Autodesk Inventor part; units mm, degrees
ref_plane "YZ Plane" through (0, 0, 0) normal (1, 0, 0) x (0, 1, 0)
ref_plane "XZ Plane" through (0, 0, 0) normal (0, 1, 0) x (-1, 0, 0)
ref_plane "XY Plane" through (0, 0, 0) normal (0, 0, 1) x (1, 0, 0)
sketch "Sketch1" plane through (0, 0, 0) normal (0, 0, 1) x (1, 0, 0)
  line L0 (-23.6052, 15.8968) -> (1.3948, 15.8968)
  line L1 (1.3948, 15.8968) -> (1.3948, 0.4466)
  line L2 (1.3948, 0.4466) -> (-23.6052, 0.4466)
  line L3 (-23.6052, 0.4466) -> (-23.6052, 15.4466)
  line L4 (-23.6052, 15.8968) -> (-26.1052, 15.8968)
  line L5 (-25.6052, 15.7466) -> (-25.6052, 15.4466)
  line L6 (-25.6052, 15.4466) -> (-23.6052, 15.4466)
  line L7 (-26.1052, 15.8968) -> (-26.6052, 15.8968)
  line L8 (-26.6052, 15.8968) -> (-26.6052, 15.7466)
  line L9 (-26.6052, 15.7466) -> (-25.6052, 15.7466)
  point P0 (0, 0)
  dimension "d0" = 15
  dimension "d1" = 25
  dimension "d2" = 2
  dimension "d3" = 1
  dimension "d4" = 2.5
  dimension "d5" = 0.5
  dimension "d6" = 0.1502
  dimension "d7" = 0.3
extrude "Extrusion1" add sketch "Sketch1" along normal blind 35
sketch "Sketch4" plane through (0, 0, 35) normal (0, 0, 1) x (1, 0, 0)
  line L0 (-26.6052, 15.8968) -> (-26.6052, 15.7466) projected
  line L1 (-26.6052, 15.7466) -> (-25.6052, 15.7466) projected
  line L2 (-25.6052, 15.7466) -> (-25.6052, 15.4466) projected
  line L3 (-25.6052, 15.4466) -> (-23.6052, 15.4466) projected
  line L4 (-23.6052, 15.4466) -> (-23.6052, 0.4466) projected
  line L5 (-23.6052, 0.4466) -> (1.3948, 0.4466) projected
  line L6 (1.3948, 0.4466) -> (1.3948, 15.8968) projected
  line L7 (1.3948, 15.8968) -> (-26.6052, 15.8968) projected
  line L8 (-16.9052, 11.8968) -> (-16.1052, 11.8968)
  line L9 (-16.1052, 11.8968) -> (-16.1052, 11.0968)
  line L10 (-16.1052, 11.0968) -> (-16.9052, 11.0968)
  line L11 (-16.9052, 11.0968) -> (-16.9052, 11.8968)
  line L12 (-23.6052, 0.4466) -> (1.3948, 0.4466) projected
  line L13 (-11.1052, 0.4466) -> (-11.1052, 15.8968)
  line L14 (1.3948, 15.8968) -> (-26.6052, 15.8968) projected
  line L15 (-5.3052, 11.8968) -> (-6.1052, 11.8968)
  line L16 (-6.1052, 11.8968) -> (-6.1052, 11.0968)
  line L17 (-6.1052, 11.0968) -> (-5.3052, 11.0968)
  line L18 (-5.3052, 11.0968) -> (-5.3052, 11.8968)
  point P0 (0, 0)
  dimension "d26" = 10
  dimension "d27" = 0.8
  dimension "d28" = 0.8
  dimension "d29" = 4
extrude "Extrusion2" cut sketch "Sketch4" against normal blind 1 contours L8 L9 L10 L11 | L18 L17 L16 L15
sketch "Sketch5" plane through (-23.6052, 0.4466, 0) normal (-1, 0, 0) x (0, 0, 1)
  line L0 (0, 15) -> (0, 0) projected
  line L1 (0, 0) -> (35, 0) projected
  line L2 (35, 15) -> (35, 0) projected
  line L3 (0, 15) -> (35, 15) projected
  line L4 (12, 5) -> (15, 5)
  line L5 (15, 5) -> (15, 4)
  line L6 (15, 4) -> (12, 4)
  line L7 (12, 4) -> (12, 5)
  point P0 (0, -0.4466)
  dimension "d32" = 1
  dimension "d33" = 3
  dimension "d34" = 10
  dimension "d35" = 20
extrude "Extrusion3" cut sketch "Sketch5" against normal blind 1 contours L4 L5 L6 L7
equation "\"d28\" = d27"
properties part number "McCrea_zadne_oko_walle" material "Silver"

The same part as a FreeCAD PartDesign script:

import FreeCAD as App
import Part
import Sketcher
from FreeCAD import Vector
Q = App.Units.Quantity


def add_polygon(sketch, points):
    """Adds a closed chain of lines whose ends are joined by coincident constraints."""
    first, n = sketch.GeometryCount, len(points)
    for a, b in zip(points, points[1:] + points[:1]):
        sketch.addGeometry(Part.LineSegment(App.Vector(*a, 0), App.Vector(*b, 0)), False)
    for i in range(n):
        sketch.addConstraint(Sketcher.Constraint("Coincident", first + i, 2, first + (i + 1) % n, 1))

doc = App.newDocument("Part")
params = doc.addObject("Spreadsheet::Sheet", "Params")
for row, (alias, value) in enumerate([
    ("sketch1_width", "1 mm"),
    ("sketch1_width2", "2 mm"),
    ("sketch1_width3", "25 mm"),
    ("sketch1_height", "15 mm"),
    ("sketch1_height2", "0.3 mm"),
    ("pad1_length", "35 mm"),
    ("sketch2_width", "0.8 mm"),
    ("pocket1_length", "1 mm"),
    ("sketch3_width", "1 mm"),
    ("sketch3_height", "3 mm"),
    ("pocket2_length", "1 mm"),
], start=1):
    params.set(f"A{row}", alias)
    params.set(f"B{row}", "=" + value)
    params.setAlias(f"B{row}", alias)

body = doc.addObject("PartDesign::Body", "Body")

# Sketch on XY plane
sketch1 = body.newObject("Sketcher::SketchObject", "Sketch")
sketch1.AttachmentSupport = (doc.getObject("XY_Plane"), [""])
sketch1.MapMode = "FlatFace"
add_polygon(sketch1, [(1.3948, 15.8968), (-26.6052, 15.8968), (-26.6052, 15.7466), (-25.6052, 15.7466), (-25.6052, 15.4466), (-23.6052, 15.4466), (-23.6052, 0.4466), (1.3948, 0.4466)])  # lines 0-7
sketch1.addConstraint(Sketcher.Constraint("Horizontal", 0))
sketch1.addConstraint(Sketcher.Constraint("Vertical", 1))
sketch1.addConstraint(Sketcher.Constraint("Horizontal", 2))
sketch1.addConstraint(Sketcher.Constraint("Vertical", 3))
sketch1.addConstraint(Sketcher.Constraint("Horizontal", 4))
sketch1.addConstraint(Sketcher.Constraint("Vertical", 5))
sketch1.addConstraint(Sketcher.Constraint("Horizontal", 6))
sketch1.addConstraint(Sketcher.Constraint("Vertical", 7))
sketch1.addConstraint(Sketcher.Constraint("DistanceX", 2, 1, 2, 2, Q("1 mm")))
sketch1.addConstraint(Sketcher.Constraint("DistanceX", 4, 1, 4, 2, Q("2 mm")))
sketch1.addConstraint(Sketcher.Constraint("DistanceX", 6, 1, 6, 2, Q("25 mm")))
sketch1.addConstraint(Sketcher.Constraint("DistanceY", 5, 2, 5, 1, Q("15 mm")))
sketch1.addConstraint(Sketcher.Constraint("DistanceY", 3, 2, 3, 1, Q("0.3 mm")))
sketch1.addConstraint(Sketcher.Constraint("DistanceY", 1, 2, 1, 1, Q("0.1502 mm")))
sketch1.addConstraint(Sketcher.Constraint("DistanceX", 0, 2, -1, 1, Q("26.6052 mm")))
sketch1.addConstraint(Sketcher.Constraint("DistanceY", -1, 1, 0, 2, Q("15.8968 mm")))
sketch1.setExpression("Constraints[16]", "Params.sketch1_width")
sketch1.setExpression("Constraints[17]", "Params.sketch1_width2")
sketch1.setExpression("Constraints[18]", "Params.sketch1_width3")
sketch1.setExpression("Constraints[19]", "Params.sketch1_height")
sketch1.setExpression("Constraints[20]", "Params.sketch1_height2")
pad1 = body.newObject("PartDesign::Pad", "Pad")
pad1.Profile = sketch1
pad1.setExpression("Length", "Params.pad1_length")

# Sketch on XY plane
sketch2 = body.newObject("Sketcher::SketchObject", "Sketch001")
sketch2.AttachmentSupport = (doc.getObject("XY_Plane"), [""])
sketch2.MapMode = "FlatFace"
sketch2.AttachmentOffset = App.Placement(Vector(0, 0, 35), App.Rotation())
add_polygon(sketch2, [(-16.1052, 11.8968), (-16.9052, 11.8968), (-16.9052, 11.0968), (-16.1052, 11.0968)])  # lines 0-3
add_polygon(sketch2, [(-5.3052, 11.0968), (-5.3052, 11.8968), (-6.1052, 11.8968), (-6.1052, 11.0968)])  # lines 4-7
sketch2.addConstraint(Sketcher.Constraint("Horizontal", 0))
sketch2.addConstraint(Sketcher.Constraint("Vertical", 1))
sketch2.addConstraint(Sketcher.Constraint("Horizontal", 2))
sketch2.addConstraint(Sketcher.Constraint("Vertical", 3))
sketch2.addConstraint(Sketcher.Constraint("Vertical", 4))
sketch2.addConstraint(Sketcher.Constraint("Horizontal", 5))
sketch2.addConstraint(Sketcher.Constraint("Vertical", 6))
sketch2.addConstraint(Sketcher.Constraint("Horizontal", 7))
sketch2.addConstraint(Sketcher.Constraint("Horizontal", 3, 2, 4, 2))
sketch2.addConstraint(Sketcher.Constraint("Horizontal", 2, 2, 6, 2))
sketch2.addConstraint(Sketcher.Constraint("Equal", 2, 5))
sketch2.addConstraint(Sketcher.Constraint("Equal", 7, 1))
sketch2.addConstraint(Sketcher.Constraint("DistanceX", 0, 2, 0, 1, Q("0.8 mm")))
sketch2.addConstraint(Sketcher.Constraint("DistanceX", 3, 2, 5, 2, Q("10 mm")))
sketch2.addConstraint(Sketcher.Constraint("DistanceX", 0, 2, -1, 1, Q("16.9052 mm")))
sketch2.addConstraint(Sketcher.Constraint("DistanceY", -1, 1, 0, 2, Q("11.8968 mm")))
sketch2.setExpression("Constraints[20]", "Params.sketch2_width")
pocket1 = body.newObject("PartDesign::Pocket", "Pocket")
pocket1.Profile = sketch2
pocket1.setExpression("Length", "Params.pocket1_length")

# Sketch on YZ plane
sketch3 = body.newObject("Sketcher::SketchObject", "Sketch002")
sketch3.AttachmentSupport = (doc.getObject("YZ_Plane"), [""])
sketch3.MapMode = "FlatFace"
sketch3.AttachmentOffset = App.Placement(Vector(0, 0, -23.6052), App.Rotation())
add_polygon(sketch3, [(5.4466, 15), (5.4466, 12), (4.4466, 12), (4.4466, 15)])  # lines 0-3
sketch3.addConstraint(Sketcher.Constraint("Vertical", 0))
sketch3.addConstraint(Sketcher.Constraint("Horizontal", 1))
sketch3.addConstraint(Sketcher.Constraint("Vertical", 2))
sketch3.addConstraint(Sketcher.Constraint("Horizontal", 3))
sketch3.addConstraint(Sketcher.Constraint("DistanceX", 1, 2, 1, 1, Q("1 mm")))
sketch3.addConstraint(Sketcher.Constraint("DistanceY", 0, 2, 0, 1, Q("3 mm")))
sketch3.addConstraint(Sketcher.Constraint("DistanceY", -1, 1, 0, 2, Q("12 mm")))
sketch3.addConstraint(Sketcher.Constraint("DistanceX", -1, 1, 0, 2, Q("5.4466 mm")))
sketch3.setExpression("Constraints[8]", "Params.sketch3_width")
sketch3.setExpression("Constraints[9]", "Params.sketch3_height")
pocket2 = body.newObject("PartDesign::Pocket", "Pocket001")
pocket2.Profile = sketch3
pocket2.setExpression("Length", "Params.pocket2_length")
pocket2.Reversed = True

doc.recompute()
